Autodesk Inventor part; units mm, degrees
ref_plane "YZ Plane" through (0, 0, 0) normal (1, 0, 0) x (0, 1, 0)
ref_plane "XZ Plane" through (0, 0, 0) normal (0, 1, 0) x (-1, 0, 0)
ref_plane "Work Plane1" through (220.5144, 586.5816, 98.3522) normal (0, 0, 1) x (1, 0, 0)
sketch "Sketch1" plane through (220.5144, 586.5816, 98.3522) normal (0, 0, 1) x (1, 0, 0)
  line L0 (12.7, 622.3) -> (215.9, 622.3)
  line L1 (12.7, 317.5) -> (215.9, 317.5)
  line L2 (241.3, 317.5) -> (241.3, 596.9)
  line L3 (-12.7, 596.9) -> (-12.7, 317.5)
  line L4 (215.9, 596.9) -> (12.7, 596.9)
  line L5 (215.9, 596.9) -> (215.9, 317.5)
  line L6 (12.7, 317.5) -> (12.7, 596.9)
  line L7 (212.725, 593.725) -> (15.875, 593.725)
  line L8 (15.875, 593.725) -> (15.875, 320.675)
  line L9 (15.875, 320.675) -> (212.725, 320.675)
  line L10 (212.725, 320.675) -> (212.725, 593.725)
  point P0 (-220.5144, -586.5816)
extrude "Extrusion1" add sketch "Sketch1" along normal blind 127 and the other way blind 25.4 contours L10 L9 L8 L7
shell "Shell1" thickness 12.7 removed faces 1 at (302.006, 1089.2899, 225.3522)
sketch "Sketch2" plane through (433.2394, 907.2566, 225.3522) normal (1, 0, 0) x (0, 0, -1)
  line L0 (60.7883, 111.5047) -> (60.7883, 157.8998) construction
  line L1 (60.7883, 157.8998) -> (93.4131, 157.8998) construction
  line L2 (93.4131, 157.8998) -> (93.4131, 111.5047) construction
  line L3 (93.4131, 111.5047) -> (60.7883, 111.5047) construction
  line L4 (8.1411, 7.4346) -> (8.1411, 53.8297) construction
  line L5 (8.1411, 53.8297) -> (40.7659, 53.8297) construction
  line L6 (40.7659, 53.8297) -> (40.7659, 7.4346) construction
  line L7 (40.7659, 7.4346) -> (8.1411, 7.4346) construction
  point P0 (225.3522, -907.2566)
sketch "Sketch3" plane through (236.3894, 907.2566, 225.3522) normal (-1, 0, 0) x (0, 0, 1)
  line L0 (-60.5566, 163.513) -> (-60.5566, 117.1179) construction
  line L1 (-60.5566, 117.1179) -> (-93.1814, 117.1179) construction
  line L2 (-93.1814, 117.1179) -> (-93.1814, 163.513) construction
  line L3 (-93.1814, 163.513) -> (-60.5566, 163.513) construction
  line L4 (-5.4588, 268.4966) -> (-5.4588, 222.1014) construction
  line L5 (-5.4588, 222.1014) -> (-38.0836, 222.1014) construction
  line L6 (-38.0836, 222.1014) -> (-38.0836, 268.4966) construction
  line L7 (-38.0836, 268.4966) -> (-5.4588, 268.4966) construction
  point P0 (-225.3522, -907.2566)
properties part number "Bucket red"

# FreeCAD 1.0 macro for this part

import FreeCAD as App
import Part
import Sketcher

V = App.Vector
Q = App.Units.Quantity


def faces_at(feature, points):
    """Names of the faces that lie closest to the given points."""
    faces = feature.Shape.Faces
    near = lambda p: min(range(len(faces)), key=lambda i: faces[i].distToShape(Part.Vertex(*p))[0])
    return sorted({f"Face{near(p) + 1}" for p in points})

doc = App.newDocument("Part")
body = doc.addObject("PartDesign::Body", "Body")

# Sketch on XY plane
sketch1 = body.newObject("Sketcher::SketchObject", "Sketch")
sketch1.AttachmentSupport = (doc.getObject("XY_Plane"), [""])
sketch1.MapMode = "FlatFace"
sketch1.AttachmentOffset = App.Placement(V(0, 0, 98.3522), App.Rotation())
sketch1.addGeometry([
    Part.LineSegment(V(433.2394, 907.2566, 0), V(433.2394, 1180.3066, 0)),
    Part.LineSegment(V(433.2394, 1180.3066, 0), V(236.3894, 1180.3066, 0)),
    Part.LineSegment(V(236.3894, 1180.3066, 0), V(236.3894, 907.2566, 0)),
    Part.LineSegment(V(236.3894, 907.2566, 0), V(433.2394, 907.2566, 0)),
], False)
sketch1.addConstraint([
    Sketcher.Constraint("Coincident", 0, 2, 1, 1),
    Sketcher.Constraint("Coincident", 1, 2, 2, 1),
    Sketcher.Constraint("Coincident", 2, 2, 3, 1),
    Sketcher.Constraint("Coincident", 3, 2, 0, 1),
    Sketcher.Constraint("Vertical", 0),
    Sketcher.Constraint("Horizontal", 1),
    Sketcher.Constraint("Vertical", 2),
    Sketcher.Constraint("Horizontal", 3),
    Sketcher.Constraint("DistanceX", 1, 2, 1, 1, Q("7.75 in")),
    Sketcher.Constraint("DistanceY", 0, 1, 0, 2, Q("10.75 in")),
    Sketcher.Constraint("DistanceX", -1, 1, 0, 2, Q("433.2394 mm")),
    Sketcher.Constraint("DistanceY", -1, 1, 0, 2, Q("1180.3066 mm")),
])
pad1 = body.newObject("PartDesign::Pad", "Pad")
pad1.Profile = sketch1
pad1.Type = "TwoLengths"
pad1.Length = Q("5 in")
pad1.Length2 = Q("1 in")
doc.recompute()

thickness = body.newObject("PartDesign::Thickness", "Thickness")
thickness.Base = (pad1, faces_at(pad1, [(302.006, 1089.29, 225.352)]))
thickness.Value = Q("0.5 in")
thickness.Reversed = True
thickness.Join = "Intersection"

doc.recompute()
